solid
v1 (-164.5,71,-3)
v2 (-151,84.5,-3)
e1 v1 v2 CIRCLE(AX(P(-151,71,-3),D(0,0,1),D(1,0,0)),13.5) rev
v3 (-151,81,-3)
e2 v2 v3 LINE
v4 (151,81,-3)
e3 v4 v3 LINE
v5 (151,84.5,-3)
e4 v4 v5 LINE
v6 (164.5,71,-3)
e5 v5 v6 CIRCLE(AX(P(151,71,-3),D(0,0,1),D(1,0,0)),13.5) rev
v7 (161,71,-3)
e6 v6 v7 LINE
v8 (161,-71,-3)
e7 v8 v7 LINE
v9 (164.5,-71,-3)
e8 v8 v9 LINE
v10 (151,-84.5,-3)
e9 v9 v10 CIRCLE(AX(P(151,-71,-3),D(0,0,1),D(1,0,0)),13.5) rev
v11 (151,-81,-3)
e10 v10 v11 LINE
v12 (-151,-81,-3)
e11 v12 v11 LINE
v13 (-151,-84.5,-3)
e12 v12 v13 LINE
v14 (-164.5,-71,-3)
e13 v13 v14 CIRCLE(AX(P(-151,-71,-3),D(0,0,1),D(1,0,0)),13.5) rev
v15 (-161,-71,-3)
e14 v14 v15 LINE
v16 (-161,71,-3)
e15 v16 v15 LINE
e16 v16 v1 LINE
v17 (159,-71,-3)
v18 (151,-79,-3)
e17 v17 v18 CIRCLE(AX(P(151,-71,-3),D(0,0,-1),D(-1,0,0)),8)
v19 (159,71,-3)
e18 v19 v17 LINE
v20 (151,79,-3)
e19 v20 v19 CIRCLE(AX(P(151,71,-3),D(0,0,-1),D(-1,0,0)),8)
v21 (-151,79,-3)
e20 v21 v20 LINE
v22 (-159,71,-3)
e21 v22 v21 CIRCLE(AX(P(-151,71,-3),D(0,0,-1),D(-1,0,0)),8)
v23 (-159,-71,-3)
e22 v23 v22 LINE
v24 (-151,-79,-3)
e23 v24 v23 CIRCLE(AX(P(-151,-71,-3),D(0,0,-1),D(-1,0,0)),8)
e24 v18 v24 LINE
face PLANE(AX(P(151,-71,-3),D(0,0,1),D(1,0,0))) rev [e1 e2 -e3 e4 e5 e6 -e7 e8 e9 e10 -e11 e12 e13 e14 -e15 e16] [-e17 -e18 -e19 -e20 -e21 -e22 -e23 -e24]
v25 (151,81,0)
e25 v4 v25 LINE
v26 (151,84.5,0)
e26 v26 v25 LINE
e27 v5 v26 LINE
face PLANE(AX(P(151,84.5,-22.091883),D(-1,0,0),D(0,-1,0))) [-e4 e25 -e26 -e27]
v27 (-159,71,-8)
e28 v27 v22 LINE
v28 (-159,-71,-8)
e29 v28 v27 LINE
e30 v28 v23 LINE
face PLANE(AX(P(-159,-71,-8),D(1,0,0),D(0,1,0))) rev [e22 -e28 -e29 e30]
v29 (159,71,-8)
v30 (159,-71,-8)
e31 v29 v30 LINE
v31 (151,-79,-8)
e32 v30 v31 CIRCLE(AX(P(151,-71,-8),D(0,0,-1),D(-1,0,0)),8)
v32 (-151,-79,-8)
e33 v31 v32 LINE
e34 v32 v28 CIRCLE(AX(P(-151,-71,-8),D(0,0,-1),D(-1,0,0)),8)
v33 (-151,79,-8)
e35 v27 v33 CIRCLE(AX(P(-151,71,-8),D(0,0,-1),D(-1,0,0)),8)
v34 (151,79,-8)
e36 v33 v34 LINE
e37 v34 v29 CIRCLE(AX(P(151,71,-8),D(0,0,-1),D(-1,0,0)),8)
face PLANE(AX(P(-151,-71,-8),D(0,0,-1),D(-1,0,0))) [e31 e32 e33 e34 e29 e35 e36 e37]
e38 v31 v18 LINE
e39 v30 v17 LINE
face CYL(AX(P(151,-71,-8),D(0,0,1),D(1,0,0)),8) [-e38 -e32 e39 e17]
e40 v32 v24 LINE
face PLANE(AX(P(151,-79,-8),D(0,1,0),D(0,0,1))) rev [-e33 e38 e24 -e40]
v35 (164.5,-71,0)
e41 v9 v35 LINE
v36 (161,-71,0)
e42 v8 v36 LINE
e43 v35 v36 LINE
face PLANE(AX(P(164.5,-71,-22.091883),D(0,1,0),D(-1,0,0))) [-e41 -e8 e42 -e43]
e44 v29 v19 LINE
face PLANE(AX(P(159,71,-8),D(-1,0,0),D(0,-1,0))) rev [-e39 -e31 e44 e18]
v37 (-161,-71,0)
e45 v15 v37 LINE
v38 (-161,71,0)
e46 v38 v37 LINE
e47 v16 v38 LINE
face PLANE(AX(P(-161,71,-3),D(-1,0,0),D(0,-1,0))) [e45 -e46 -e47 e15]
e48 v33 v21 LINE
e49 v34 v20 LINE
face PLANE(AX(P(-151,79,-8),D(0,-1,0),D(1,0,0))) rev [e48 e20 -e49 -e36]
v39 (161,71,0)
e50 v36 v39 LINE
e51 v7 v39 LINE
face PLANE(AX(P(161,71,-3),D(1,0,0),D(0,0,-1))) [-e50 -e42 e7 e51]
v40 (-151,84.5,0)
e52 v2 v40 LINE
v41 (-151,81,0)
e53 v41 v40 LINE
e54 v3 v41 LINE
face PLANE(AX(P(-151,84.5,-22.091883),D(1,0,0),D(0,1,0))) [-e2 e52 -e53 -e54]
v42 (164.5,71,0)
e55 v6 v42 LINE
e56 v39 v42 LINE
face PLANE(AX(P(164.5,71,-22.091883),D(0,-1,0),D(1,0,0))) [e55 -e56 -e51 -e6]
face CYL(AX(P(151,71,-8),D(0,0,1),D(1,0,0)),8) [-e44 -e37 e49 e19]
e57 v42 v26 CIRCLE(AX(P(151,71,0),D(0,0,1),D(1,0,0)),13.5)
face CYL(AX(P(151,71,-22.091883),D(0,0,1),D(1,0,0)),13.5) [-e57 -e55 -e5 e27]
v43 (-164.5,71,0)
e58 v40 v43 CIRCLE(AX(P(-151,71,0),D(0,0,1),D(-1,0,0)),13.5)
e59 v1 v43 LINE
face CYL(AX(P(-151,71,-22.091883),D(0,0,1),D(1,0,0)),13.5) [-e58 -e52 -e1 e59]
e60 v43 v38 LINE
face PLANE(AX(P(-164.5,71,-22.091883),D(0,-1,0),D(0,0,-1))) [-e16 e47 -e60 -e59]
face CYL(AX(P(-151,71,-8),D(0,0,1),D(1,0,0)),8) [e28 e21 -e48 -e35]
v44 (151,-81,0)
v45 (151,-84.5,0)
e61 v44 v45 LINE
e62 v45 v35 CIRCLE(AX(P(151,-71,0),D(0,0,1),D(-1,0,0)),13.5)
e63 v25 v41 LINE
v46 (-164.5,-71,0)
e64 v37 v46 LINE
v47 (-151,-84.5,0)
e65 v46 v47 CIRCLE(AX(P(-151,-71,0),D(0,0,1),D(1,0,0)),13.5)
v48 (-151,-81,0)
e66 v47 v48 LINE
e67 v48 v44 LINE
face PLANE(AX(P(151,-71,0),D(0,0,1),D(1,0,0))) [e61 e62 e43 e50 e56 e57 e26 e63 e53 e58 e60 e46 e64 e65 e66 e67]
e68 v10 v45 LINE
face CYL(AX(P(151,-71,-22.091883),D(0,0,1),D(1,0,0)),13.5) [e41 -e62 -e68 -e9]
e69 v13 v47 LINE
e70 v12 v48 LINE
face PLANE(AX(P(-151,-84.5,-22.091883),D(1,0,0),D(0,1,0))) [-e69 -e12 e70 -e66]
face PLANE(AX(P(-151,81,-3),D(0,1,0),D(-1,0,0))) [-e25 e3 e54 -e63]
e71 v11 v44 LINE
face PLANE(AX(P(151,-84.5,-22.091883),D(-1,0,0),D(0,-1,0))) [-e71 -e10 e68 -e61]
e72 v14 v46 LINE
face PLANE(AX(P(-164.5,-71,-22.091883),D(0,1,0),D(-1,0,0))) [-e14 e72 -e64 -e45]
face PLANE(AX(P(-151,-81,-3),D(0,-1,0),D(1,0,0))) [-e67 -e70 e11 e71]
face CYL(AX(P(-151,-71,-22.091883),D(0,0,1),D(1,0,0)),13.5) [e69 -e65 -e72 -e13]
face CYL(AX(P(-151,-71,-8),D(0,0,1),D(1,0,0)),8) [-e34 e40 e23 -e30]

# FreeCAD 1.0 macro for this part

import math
import FreeCAD as App
import Part
import Sketcher
from FreeCAD import Vector

doc = App.newDocument("Part")
body = doc.addObject("PartDesign::Body", "Body")

sketch1 = body.newObject("Sketcher::SketchObject", "Sketch")
sketch1.AttachmentSupport = (doc.getObject("XY_Plane"), [""])
sketch1.MapMode = "FlatFace"
sketch1.addGeometry([
    Part.LineSegment(Vector(151, 81, 0), Vector(-151, 81, 0)),
    Part.ArcOfCircle(Part.Circle(Vector(-151, 71, 0), Vector(0, 0, 1), 10), math.radians(90), math.radians(180)),
    Part.LineSegment(Vector(-161, 71, 0), Vector(-161, -71, 0)),
    Part.ArcOfCircle(Part.Circle(Vector(-151, -71, 0), Vector(0, 0, 1), 10), math.radians(180), math.radians(270)),
    Part.LineSegment(Vector(-151, -81, 0), Vector(151, -81, 0)),
    Part.ArcOfCircle(Part.Circle(Vector(151, -71, 0), Vector(0, 0, 1), 10), math.radians(-90), math.radians(0)),
    Part.LineSegment(Vector(161, -71, 0), Vector(161, 71, 0)),
    Part.ArcOfCircle(Part.Circle(Vector(151, 71, 0), Vector(0, 0, 1), 10), math.radians(0), math.radians(90)),
], False)
sketch1.addConstraint([
    Sketcher.Constraint("Tangent", 0, 2, 1, 1),
    Sketcher.Constraint("Tangent", 1, 2, 2, 1),
    Sketcher.Constraint("Tangent", 2, 2, 3, 1),
    Sketcher.Constraint("Tangent", 3, 2, 4, 1),
    Sketcher.Constraint("Tangent", 4, 2, 5, 1),
    Sketcher.Constraint("Tangent", 5, 2, 6, 1),
    Sketcher.Constraint("Tangent", 6, 2, 7, 1),
    Sketcher.Constraint("Tangent", 7, 2, 0, 1),
    Sketcher.Constraint("Horizontal", 0),
    Sketcher.Constraint("Vertical", 2),
    Sketcher.Constraint("Horizontal", 4),
    Sketcher.Constraint("Vertical", 6),
    Sketcher.Constraint("Equal", 1, 3),
    Sketcher.Constraint("Equal", 3, 5),
    Sketcher.Constraint("Equal", 5, 7),
    Sketcher.Constraint("Symmetric", 1, 3, 5, 3, -1, 1),
    Sketcher.Constraint("Radius", 1, 10.0),
    Sketcher.Constraint("DistanceX", 0, 2, 0, 1, 302.0),
    Sketcher.Constraint("DistanceY", 2, 2, 2, 1, 142.0),
])
pad1 = body.newObject("PartDesign::Pad", "Pad")
pad1.Profile = sketch1
pad1.Length = 3
pad1.Reversed = True

sketch2 = body.newObject("Sketcher::SketchObject", "Sketch001")
sketch2.AttachmentSupport = (doc.getObject("XY_Plane"), [""])
sketch2.MapMode = "FlatFace"
sketch2.AttachmentOffset = App.Placement(Vector(0, 0, -3), App.Rotation())
sketch2.addGeometry([
    Part.LineSegment(Vector(151, -79, 0), Vector(-151, -79, 0)),
    Part.ArcOfCircle(Part.Circle(Vector(-151, -71, 0), Vector(0, 0, 1), 8), math.radians(-180), math.radians(-90)),
    Part.LineSegment(Vector(-159, -71, 0), Vector(-159, 71, 0)),
    Part.ArcOfCircle(Part.Circle(Vector(-151, 71, 0), Vector(0, 0, 1), 8), math.radians(90), math.radians(180)),
    Part.LineSegment(Vector(-151, 79, 0), Vector(151, 79, 0)),
    Part.ArcOfCircle(Part.Circle(Vector(151, 71, 0), Vector(0, 0, 1), 8), math.radians(0), math.radians(90)),
    Part.LineSegment(Vector(159, 71, 0), Vector(159, -71, 0)),
    Part.ArcOfCircle(Part.Circle(Vector(151, -71, 0), Vector(0, 0, 1), 8), math.radians(-90), math.radians(0)),
], False)
sketch2.addConstraint([
    Sketcher.Constraint("Tangent", 0, 2, 1, 2),
    Sketcher.Constraint("Tangent", 1, 1, 2, 1),
    Sketcher.Constraint("Tangent", 2, 2, 3, 2),
    Sketcher.Constraint("Tangent", 3, 1, 4, 1),
    Sketcher.Constraint("Tangent", 4, 2, 5, 2),
    Sketcher.Constraint("Tangent", 5, 1, 6, 1),
    Sketcher.Constraint("Tangent", 6, 2, 7, 2),
    Sketcher.Constraint("Tangent", 7, 1, 0, 1),
    Sketcher.Constraint("Horizontal", 0),
    Sketcher.Constraint("Vertical", 2),
    Sketcher.Constraint("Horizontal", 4),
    Sketcher.Constraint("Vertical", 6),
    Sketcher.Constraint("Equal", 1, 3),
    Sketcher.Constraint("Equal", 3, 5),
    Sketcher.Constraint("Equal", 5, 7),
    Sketcher.Constraint("Symmetric", 1, 3, 5, 3, -1, 1),
    Sketcher.Constraint("Radius", 1, 8.0),
    Sketcher.Constraint("DistanceX", 0, 2, 0, 1, 302.0),
    Sketcher.Constraint("DistanceY", 2, 1, 2, 2, 142.0),
])
pad2 = body.newObject("PartDesign::Pad", "Pad001")
pad2.Profile = sketch2
pad2.Length = 5
pad2.Reversed = True

sketch3 = body.newObject("Sketcher::SketchObject", "Sketch002")
sketch3.AttachmentSupport = (doc.getObject("XY_Plane"), [""])
sketch3.MapMode = "FlatFace"
sketch3.addGeometry([
    Part.LineSegment(Vector(-164, 71, 0), Vector(-151, 71, 0)),
    Part.LineSegment(Vector(-151, 71, 0), Vector(-151, 84, 0)),
    Part.ArcOfCircle(Part.Circle(Vector(-151, 71, 0), Vector(0, 0, 1), 14), math.radians(90), math.radians(180)),
    Part.LineSegment(Vector(164, -71, 0), Vector(151, -71, 0)),
    Part.LineSegment(Vector(151, -71, 0), Vector(151, -84, 0)),
    Part.ArcOfCircle(Part.Circle(Vector(151, -71, 0), Vector(0, 0, 1), 14), math.radians(-90), math.radians(0)),
    Part.LineSegment(Vector(-151, -84, 0), Vector(-151, -71, 0)),
    Part.LineSegment(Vector(-151, -71, 0), Vector(-164, -71, 0)),
    Part.ArcOfCircle(Part.Circle(Vector(-151, -71, 0), Vector(0, 0, 1), 14), math.radians(180), math.radians(270)),
    Part.LineSegment(Vector(151, 84, 0), Vector(151, 71, 0)),
    Part.LineSegment(Vector(151, 71, 0), Vector(164, 71, 0)),
    Part.ArcOfCircle(Part.Circle(Vector(151, 71, 0), Vector(0, 0, 1), 14), math.radians(0), math.radians(90)),
], False)
sketch3.addConstraint([
    Sketcher.Constraint("Coincident", 0, 2, 1, 1),
    Sketcher.Constraint("Coincident", 1, 2, 2, 1),
    Sketcher.Constraint("Coincident", 2, 2, 0, 1),
    Sketcher.Constraint("Coincident", 3, 2, 4, 1),
    Sketcher.Constraint("Coincident", 4, 2, 5, 1),
    Sketcher.Constraint("Coincident", 5, 2, 3, 1),
    Sketcher.Constraint("Coincident", 6, 2, 7, 1),
    Sketcher.Constraint("Coincident", 7, 2, 8, 1),
    Sketcher.Constraint("Coincident", 8, 2, 6, 1),
    Sketcher.Constraint("Coincident", 9, 2, 10, 1),
    Sketcher.Constraint("Coincident", 10, 2, 11, 1),
    Sketcher.Constraint("Coincident", 11, 2, 9, 1),
    Sketcher.Constraint("Horizontal", 0),
    Sketcher.Constraint("Vertical", 1),
    Sketcher.Constraint("Horizontal", 3),
    Sketcher.Constraint("Vertical", 4),
    Sketcher.Constraint("Vertical", 6),
    Sketcher.Constraint("Horizontal", 7),
    Sketcher.Constraint("Vertical", 9),
    Sketcher.Constraint("Horizontal", 10),
    Sketcher.Constraint("Coincident", 0, 2, 2, 3),
    Sketcher.Constraint("Coincident", 3, 2, 5, 3),
    Sketcher.Constraint("Coincident", 6, 2, 8, 3),
    Sketcher.Constraint("Coincident", 9, 2, 11, 3),
    Sketcher.Constraint("Equal", 2, 5),
    Sketcher.Constraint("Equal", 5, 8),
    Sketcher.Constraint("Equal", 8, 11),
    Sketcher.Constraint("Symmetric", 2, 3, 5, 3, -1, 1),
    Sketcher.Constraint("Symmetric", 8, 3, 11, 3, -1, 1),
    Sketcher.Constraint("Symmetric", 5, 3, 8, 3, -2),
    Sketcher.Constraint("Radius", 2, 13.5),
    Sketcher.Constraint("DistanceX", 2, 3, -1, 1, 151.0),
    Sketcher.Constraint("DistanceY", -1, 1, 2, 3, 71.0),
])
pad3 = body.newObject("PartDesign::Pad", "Pad002")
pad3.Profile = sketch3
pad3.Length = 3
pad3.Reversed = True

doc.recompute()
